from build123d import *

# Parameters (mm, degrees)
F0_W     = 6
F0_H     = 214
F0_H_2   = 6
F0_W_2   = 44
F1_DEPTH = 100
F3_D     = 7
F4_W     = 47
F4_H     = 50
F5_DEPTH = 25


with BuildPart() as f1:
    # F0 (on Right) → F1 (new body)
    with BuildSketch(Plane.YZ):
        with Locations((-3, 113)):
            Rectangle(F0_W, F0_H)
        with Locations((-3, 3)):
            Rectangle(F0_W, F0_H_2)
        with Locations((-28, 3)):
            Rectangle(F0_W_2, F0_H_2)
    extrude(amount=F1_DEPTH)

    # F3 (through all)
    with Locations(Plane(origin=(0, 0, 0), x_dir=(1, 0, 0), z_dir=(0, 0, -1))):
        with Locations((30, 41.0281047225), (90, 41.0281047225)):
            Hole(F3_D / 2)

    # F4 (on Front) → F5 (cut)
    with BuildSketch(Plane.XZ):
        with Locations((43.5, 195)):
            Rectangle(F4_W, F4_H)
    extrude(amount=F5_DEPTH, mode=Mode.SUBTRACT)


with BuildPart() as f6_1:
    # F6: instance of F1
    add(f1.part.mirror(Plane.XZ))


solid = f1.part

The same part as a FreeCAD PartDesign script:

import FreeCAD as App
import Part
import Sketcher

V = App.Vector
Q = App.Units.Quantity

doc = App.newDocument("Part")
params = doc.addObject("Spreadsheet::Sheet", "Params")
for row, (alias, value) in enumerate([
    ("sketch1_width", "44 mm"),
    ("sketch1_width2", "50 mm"),
    ("sketch1_height", "214 mm"),
    ("pad1_length", "100 mm"),
    ("sketch2_diameter", "7 mm"),
    ("hole_diameter", "7 mm"),
    ("sketch3_width", "47 mm"),
    ("sketch3_height", "50 mm"),
    ("pocket1_length", "25 mm"),
], start=1):
    params.set(f"A{row}", alias)
    params.set(f"B{row}", "=" + value)
    params.setAlias(f"B{row}", alias)

body = doc.addObject("PartDesign::Body", "Body")

# Sketch on YZ plane
sketch1 = doc.addObject("Sketcher::SketchObject", "Sketch")
body.addObject(sketch1)
sketch1.AttachmentSupport = (doc.YZ_Plane, [""])
sketch1.MapMode = "FlatFace"
sketch1.addGeometry([
    Part.LineSegment(V(-6, 220, 0), V(-6, 6, 0)),  # 0
    Part.LineSegment(V(-6, 6, 0), V(-50, 6, 0)),  # 1
    Part.LineSegment(V(-50, 6, 0), V(-50, 0, 0)),  # 2
    Part.LineSegment(V(-50, 0, 0), V(0, 0, 0)),  # 3
    Part.LineSegment(V(0, 0, 0), V(0, 220, 0)),  # 4
    Part.LineSegment(V(0, 220, 0), V(-6, 220, 0)),  # 5
], False)
sketch1.addConstraint([
    Sketcher.Constraint("Coincident", 0, 2, 1, 1),
    Sketcher.Constraint("Coincident", 1, 2, 2, 1),
    Sketcher.Constraint("Coincident", 2, 2, 3, 1),
    Sketcher.Constraint("Coincident", 3, 2, 4, 1),
    Sketcher.Constraint("Coincident", 4, 2, 5, 1),
    Sketcher.Constraint("Coincident", 5, 2, 0, 1),
    Sketcher.Constraint("Vertical", 0),
    Sketcher.Constraint("Horizontal", 1),
    Sketcher.Constraint("Vertical", 2),
    Sketcher.Constraint("Horizontal", 3),
    Sketcher.Constraint("Vertical", 4),
    Sketcher.Constraint("Horizontal", 5),
    Sketcher.Constraint("Coincident", 3, 2, -1, 1),
    Sketcher.Constraint("Equal", 5, 2),
    Sketcher.Constraint("DistanceX", 1, 2, 1, 1, Q("44 mm")),
    Sketcher.Constraint("DistanceX", 3, 1, 3, 2, Q("50 mm")),
    Sketcher.Constraint("DistanceY", 0, 2, 0, 1, Q("214 mm")),
])
sketch1.setExpression("Constraints[14]", "Params.sketch1_width")
sketch1.setExpression("Constraints[15]", "Params.sketch1_width2")
sketch1.setExpression("Constraints[16]", "Params.sketch1_height")
pad1 = doc.addObject("PartDesign::Pad", "Pad")
body.addObject(pad1)
pad1.Profile = sketch1
pad1.setExpression("Length", "Params.pad1_length")

# Sketch on XY plane
sketch2 = doc.addObject("Sketcher::SketchObject", "Sketch001")
body.addObject(sketch2)
sketch2.AttachmentSupport = (doc.XY_Plane, [""])
sketch2.MapMode = "FlatFace"
sketch2.addGeometry([
    Part.Circle(V(30, -41, 0), V(0, 0, 1), 3.5),
    Part.Circle(V(90, -41, 0), V(0, 0, 1), 3.5),
], False)
sketch2.addConstraint([
    Sketcher.Constraint("Equal", 0, 1),
    Sketcher.Constraint("Horizontal", 0, 3, 1, 3),
    Sketcher.Constraint("Diameter", 0, Q("7 mm")),
    Sketcher.Constraint("DistanceX", -1, 1, 0, 3, Q("30 mm")),
    Sketcher.Constraint("DistanceX", -1, 1, 1, 3, Q("90 mm")),
    Sketcher.Constraint("DistanceY", 0, 3, -1, 1, Q("41.028105 mm")),
])
sketch2.setExpression("Constraints[2]", "Params.sketch2_diameter")
doc.recompute()
hole = doc.addObject("PartDesign::Hole", "Hole")
body.addObject(hole)
hole.Profile = sketch2
hole.ThreadType = "None"
hole.setExpression("Diameter", "Params.hole_diameter")
hole.DepthType = "ThroughAll"
hole.Reversed = True

# Sketch on XZ plane
sketch3 = doc.addObject("Sketcher::SketchObject", "Sketch002")
body.addObject(sketch3)
sketch3.AttachmentSupport = (doc.XZ_Plane, [""])
sketch3.MapMode = "FlatFace"
sketch3.addGeometry([
    Part.LineSegment(V(20, 220, 0), V(20, 170, 0)),
    Part.LineSegment(V(20, 170, 0), V(67, 170, 0)),
    Part.LineSegment(V(67, 170, 0), V(67, 220, 0)),
    Part.LineSegment(V(67, 220, 0), V(20, 220, 0)),
], False)
sketch3.addConstraint([
    Sketcher.Constraint("Coincident", 0, 2, 1, 1),
    Sketcher.Constraint("Coincident", 1, 2, 2, 1),
    Sketcher.Constraint("Coincident", 2, 2, 3, 1),
    Sketcher.Constraint("Coincident", 3, 2, 0, 1),
    Sketcher.Constraint("Vertical", 0),
    Sketcher.Constraint("Horizontal", 1),
    Sketcher.Constraint("Vertical", 2),
    Sketcher.Constraint("Horizontal", 3),
    Sketcher.Constraint("DistanceX", 1, 1, 1, 2, Q("47 mm")),
    Sketcher.Constraint("DistanceY", 0, 2, 0, 1, Q("50 mm")),
    Sketcher.Constraint("DistanceX", -1, 1, 0, 2, Q("20 mm")),
    Sketcher.Constraint("DistanceY", -1, 1, 0, 2, Q("170 mm")),
])
sketch3.setExpression("Constraints[8]", "Params.sketch3_width")
sketch3.setExpression("Constraints[9]", "Params.sketch3_height")
pocket1 = doc.addObject("PartDesign::Pocket", "Pocket")
body.addObject(pocket1)
pocket1.Profile = sketch3
pocket1.setExpression("Length", "Params.pocket1_length")
pocket1.Reversed = True
body2 = doc.addObject("PartDesign::Body", "Body001")
doc.recompute()

mirroring = doc.addObject("Part::Mirroring", "Mirroring")
mirroring.Source = body
mirroring.Base = V(0, 0, 0)
mirroring.Normal = V(0, -1, 0)
body2.BaseFeature = mirroring
doc.recompute()
body2.Visibility = False
mirroring.Visibility = False

doc.recompute()
